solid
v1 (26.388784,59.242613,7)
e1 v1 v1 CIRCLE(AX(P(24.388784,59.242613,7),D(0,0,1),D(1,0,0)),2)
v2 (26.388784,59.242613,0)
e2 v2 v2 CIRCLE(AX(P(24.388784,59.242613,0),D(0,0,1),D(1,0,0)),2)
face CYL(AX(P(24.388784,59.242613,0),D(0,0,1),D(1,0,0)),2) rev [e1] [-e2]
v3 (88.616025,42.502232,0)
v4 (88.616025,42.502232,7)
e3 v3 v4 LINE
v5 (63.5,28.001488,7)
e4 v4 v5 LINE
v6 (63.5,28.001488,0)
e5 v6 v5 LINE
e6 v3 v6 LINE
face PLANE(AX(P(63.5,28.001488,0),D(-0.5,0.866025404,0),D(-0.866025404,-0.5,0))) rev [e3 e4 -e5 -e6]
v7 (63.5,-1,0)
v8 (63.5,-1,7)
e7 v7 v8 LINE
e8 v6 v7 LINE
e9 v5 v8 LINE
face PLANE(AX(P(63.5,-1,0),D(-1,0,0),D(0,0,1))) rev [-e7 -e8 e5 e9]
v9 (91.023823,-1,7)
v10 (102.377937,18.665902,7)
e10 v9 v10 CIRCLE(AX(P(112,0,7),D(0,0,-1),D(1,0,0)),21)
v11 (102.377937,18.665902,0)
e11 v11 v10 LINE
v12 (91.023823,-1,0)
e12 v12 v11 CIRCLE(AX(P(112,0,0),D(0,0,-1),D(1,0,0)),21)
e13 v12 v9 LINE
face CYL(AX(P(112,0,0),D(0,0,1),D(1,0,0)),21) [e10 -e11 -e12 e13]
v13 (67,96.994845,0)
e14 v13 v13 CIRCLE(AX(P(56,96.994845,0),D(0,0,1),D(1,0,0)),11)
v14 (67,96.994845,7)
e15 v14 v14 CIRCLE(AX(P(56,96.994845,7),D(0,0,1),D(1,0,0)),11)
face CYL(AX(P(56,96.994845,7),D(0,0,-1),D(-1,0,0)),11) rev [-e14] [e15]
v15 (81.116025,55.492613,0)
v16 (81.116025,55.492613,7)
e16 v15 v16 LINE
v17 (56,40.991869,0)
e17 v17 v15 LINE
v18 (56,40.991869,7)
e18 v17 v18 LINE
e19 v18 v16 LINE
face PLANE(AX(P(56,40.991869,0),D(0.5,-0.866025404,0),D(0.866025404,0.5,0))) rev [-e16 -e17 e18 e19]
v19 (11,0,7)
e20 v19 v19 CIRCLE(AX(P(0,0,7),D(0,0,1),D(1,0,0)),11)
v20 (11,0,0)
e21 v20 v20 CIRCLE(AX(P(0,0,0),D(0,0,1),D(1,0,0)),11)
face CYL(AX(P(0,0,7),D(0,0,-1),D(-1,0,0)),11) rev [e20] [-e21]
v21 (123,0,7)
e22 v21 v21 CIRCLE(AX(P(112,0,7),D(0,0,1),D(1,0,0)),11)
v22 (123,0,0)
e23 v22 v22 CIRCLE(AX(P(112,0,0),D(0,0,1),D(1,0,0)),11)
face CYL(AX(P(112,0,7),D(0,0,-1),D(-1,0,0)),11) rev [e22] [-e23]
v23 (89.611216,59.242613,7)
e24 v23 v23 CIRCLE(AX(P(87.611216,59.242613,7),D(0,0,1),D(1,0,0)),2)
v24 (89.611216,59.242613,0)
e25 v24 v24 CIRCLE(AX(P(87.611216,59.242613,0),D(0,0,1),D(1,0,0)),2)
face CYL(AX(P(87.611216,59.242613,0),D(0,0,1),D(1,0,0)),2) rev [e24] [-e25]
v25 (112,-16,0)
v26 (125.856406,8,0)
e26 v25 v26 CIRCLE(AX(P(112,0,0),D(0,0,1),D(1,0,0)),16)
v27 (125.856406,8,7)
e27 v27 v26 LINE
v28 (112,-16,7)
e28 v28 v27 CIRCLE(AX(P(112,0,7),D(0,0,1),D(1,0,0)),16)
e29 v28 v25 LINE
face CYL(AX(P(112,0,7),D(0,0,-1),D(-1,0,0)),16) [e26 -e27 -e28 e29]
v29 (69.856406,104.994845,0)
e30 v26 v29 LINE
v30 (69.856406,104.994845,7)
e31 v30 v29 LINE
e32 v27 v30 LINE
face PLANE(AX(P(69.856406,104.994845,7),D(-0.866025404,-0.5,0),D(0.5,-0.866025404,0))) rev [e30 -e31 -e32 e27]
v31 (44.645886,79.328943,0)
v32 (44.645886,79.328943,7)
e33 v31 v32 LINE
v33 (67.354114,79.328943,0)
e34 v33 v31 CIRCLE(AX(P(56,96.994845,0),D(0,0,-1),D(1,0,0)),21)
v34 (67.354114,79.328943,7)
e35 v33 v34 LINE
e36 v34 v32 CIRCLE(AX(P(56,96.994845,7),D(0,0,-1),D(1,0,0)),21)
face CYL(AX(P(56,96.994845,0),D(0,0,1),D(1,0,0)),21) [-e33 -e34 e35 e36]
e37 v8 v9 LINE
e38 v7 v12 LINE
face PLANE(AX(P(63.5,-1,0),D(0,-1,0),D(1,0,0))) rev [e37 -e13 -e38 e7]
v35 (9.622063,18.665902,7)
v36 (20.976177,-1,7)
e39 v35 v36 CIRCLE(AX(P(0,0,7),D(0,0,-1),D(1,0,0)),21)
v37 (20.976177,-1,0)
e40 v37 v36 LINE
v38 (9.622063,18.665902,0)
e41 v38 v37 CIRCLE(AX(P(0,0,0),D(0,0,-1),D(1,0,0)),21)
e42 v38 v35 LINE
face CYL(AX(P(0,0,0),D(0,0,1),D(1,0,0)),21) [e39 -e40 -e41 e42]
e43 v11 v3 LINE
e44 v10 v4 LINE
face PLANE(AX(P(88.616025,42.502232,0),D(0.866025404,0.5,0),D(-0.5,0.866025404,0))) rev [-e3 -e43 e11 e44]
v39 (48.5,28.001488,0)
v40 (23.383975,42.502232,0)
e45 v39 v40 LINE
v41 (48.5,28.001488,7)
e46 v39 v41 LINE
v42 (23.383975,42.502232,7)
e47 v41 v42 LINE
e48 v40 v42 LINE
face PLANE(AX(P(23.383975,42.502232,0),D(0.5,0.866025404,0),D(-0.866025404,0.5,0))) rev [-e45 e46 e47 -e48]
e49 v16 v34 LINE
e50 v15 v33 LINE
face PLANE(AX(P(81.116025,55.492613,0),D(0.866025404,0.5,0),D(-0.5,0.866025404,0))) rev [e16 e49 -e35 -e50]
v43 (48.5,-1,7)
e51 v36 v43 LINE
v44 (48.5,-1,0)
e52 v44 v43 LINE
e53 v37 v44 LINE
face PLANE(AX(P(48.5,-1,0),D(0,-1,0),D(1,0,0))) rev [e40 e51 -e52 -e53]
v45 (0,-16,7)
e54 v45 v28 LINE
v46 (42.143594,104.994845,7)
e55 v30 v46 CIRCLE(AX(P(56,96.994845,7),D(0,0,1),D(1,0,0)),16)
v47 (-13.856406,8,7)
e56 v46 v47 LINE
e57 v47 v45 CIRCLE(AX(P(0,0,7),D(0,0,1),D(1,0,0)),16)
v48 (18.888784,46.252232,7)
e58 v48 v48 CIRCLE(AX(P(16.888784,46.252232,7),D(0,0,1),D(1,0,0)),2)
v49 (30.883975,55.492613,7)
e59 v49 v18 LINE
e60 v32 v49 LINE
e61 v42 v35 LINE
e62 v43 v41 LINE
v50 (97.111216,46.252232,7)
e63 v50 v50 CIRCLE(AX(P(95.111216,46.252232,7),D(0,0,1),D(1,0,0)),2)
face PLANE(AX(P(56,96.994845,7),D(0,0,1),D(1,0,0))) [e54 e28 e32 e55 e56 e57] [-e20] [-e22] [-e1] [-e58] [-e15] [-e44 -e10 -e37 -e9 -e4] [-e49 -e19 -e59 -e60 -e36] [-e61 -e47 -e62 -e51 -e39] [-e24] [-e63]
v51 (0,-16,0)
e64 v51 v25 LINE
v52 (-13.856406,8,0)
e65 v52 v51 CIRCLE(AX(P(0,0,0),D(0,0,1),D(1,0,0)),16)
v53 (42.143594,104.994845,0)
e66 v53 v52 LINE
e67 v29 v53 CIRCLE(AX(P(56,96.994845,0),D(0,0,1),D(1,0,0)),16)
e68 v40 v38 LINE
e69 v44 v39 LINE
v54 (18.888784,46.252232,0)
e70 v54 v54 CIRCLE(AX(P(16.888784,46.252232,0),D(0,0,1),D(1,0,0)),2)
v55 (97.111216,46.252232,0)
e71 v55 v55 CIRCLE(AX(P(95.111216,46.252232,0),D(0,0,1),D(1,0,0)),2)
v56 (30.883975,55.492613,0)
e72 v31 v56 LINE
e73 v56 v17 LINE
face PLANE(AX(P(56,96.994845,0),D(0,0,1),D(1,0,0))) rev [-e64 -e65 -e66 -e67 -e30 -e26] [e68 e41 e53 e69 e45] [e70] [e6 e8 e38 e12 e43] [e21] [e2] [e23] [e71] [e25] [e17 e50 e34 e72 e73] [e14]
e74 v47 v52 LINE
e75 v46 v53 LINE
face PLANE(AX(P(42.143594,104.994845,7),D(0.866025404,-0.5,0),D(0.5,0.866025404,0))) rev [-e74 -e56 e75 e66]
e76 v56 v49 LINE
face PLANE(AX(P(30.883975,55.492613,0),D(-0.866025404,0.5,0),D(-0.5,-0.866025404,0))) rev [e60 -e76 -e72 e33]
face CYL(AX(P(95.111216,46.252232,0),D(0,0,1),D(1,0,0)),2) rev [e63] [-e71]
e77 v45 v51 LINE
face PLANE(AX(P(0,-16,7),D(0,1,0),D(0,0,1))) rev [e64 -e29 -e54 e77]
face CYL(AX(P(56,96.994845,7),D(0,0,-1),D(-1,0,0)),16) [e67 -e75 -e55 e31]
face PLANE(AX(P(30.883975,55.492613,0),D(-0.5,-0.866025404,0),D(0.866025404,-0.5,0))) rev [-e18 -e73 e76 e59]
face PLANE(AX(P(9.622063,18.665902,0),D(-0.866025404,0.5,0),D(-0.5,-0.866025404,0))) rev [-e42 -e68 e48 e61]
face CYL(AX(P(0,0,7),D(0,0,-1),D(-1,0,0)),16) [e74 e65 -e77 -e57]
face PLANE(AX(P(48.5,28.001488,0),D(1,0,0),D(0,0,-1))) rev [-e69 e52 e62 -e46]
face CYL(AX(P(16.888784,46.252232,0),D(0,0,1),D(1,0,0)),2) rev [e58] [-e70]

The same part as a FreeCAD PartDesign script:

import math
import FreeCAD as App
import Part
import Sketcher

V = App.Vector
Q = App.Units.Quantity

doc = App.newDocument("Part")
body = doc.addObject("PartDesign::Body", "Body")

sketch1 = body.newObject("Sketcher::SketchObject", "Sketch")
sketch1.AttachmentSupport = (doc.getObject("XY_Plane"), [""])
sketch1.MapMode = "FlatFace"
sketch1.addGeometry([
    Part.LineSegment(V(42, 105, 0), V(-14, 8, 0)),
    Part.ArcOfCircle(Part.Circle(V(0, 0, 0), V(0, 0, 1), 16), math.radians(150), math.radians(270)),
    Part.LineSegment(V(0, -16, 0), V(112, -16, 0)),
    Part.ArcOfCircle(Part.Circle(V(112, 0, 0), V(0, 0, 1), 16), math.radians(-90), math.radians(30)),
    Part.LineSegment(V(126, 8, 0), V(70, 105, 0)),
    Part.ArcOfCircle(Part.Circle(V(56, 97, 0), V(0, 0, 1), 16), math.radians(30), math.radians(150)),
    Part.Circle(V(0, 0, 0), V(0, 0, 1), 11),
    Part.Circle(V(112, 0, 0), V(0, 0, 1), 11),
    Part.Circle(V(56, 97, 0), V(0, 0, 1), 11),
], False)
sketch1.addConstraint([
    Sketcher.Constraint("Tangent", 0, 2, 1, 1),
    Sketcher.Constraint("Tangent", 1, 2, 2, 1),
    Sketcher.Constraint("Tangent", 2, 2, 3, 1),
    Sketcher.Constraint("Tangent", 3, 2, 4, 1),
    Sketcher.Constraint("Tangent", 4, 2, 5, 1),
    Sketcher.Constraint("Tangent", 5, 2, 0, 1),
    Sketcher.Constraint("Horizontal", 2),
    Sketcher.Constraint("Coincident", 1, 3, -1, 1),
    Sketcher.Constraint("Coincident", 6, 3, -1, 1),
    Sketcher.Constraint("Coincident", 7, 3, 3, 3),
    Sketcher.Constraint("Coincident", 8, 3, 5, 3),
    Sketcher.Constraint("Equal", 1, 3),
    Sketcher.Constraint("Equal", 3, 5),
    Sketcher.Constraint("Equal", 6, 7),
    Sketcher.Constraint("Equal", 7, 8),
    Sketcher.Constraint("Horizontal", 0, 2, 3, 2),
    Sketcher.Constraint("Diameter", 6, Q("22 mm")),
    Sketcher.Constraint("Radius", 1, Q("16 mm")),
    Sketcher.Constraint("DistanceX", 2, 1, 2, 2, Q("112 mm")),
    Sketcher.Constraint("Angle", 0, Q("-120 deg")),
])
pad1 = body.newObject("PartDesign::Pad", "Pad")
pad1.Profile = sketch1
pad1.Length = 7

sketch2 = body.newObject("Sketcher::SketchObject", "Sketch001")
sketch2.AttachmentSupport = (doc.getObject("XY_Plane"), [""])
sketch2.MapMode = "FlatFace"
sketch2.AttachmentOffset = App.Placement(V(0, 0, 7), App.Rotation())
sketch2.addGeometry([
    Part.LineSegment(V(23, 43, 0), V(10, 19, 0)),
    Part.ArcOfCircle(Part.Circle(V(0, 0, 0), V(0, 0, 1), 21), math.radians(-3), math.radians(63)),
    Part.LineSegment(V(21, -1, 0), V(48, -1, 0)),
    Part.LineSegment(V(48, -1, 0), V(48, 28, 0)),
    Part.LineSegment(V(48, 28, 0), V(23, 43, 0)),
    Part.LineSegment(V(64, -1, 0), V(91, -1, 0)),
    Part.ArcOfCircle(Part.Circle(V(112, 0, 0), V(0, 0, 1), 21), math.radians(117), math.radians(183)),
    Part.LineSegment(V(102, 19, 0), V(89, 43, 0)),
    Part.LineSegment(V(89, 43, 0), V(64, 28, 0)),
    Part.LineSegment(V(64, 28, 0), V(64, -1, 0)),
    Part.LineSegment(V(45, 79, 0), V(31, 55, 0)),
    Part.LineSegment(V(31, 55, 0), V(56, 41, 0)),
    Part.LineSegment(V(56, 41, 0), V(81, 55, 0)),
    Part.LineSegment(V(81, 55, 0), V(67, 79, 0)),
    Part.ArcOfCircle(Part.Circle(V(56, 97, 0), V(0, 0, 1), 21), math.radians(-123), math.radians(-57)),
], False)
sketch2.addConstraint([
    Sketcher.Constraint("Coincident", 0, 2, 1, 2),
    Sketcher.Constraint("Coincident", 1, 1, 2, 1),
    Sketcher.Constraint("Coincident", 2, 2, 3, 1),
    Sketcher.Constraint("Coincident", 3, 2, 4, 1),
    Sketcher.Constraint("Coincident", 4, 2, 0, 1),
    Sketcher.Constraint("Coincident", 5, 2, 6, 2),
    Sketcher.Constraint("Coincident", 6, 1, 7, 1),
    Sketcher.Constraint("Coincident", 7, 2, 8, 1),
    Sketcher.Constraint("Coincident", 8, 2, 9, 1),
    Sketcher.Constraint("Coincident", 9, 2, 5, 1),
    Sketcher.Constraint("Coincident", 10, 2, 11, 1),
    Sketcher.Constraint("Coincident", 11, 2, 12, 1),
    Sketcher.Constraint("Coincident", 12, 2, 13, 1),
    Sketcher.Constraint("Coincident", 13, 2, 14, 2),
    Sketcher.Constraint("Coincident", 14, 1, 10, 1),
    Sketcher.Constraint("Horizontal", 2),
    Sketcher.Constraint("Vertical", 3),
    Sketcher.Constraint("Horizontal", 5),
    Sketcher.Constraint("Vertical", 9),
    Sketcher.Constraint("Coincident", 1, 3, -1, 1),
    Sketcher.Constraint("Equal", 1, 6),
    Sketcher.Constraint("Equal", 6, 14),
    Sketcher.Constraint("PointOnObject", 6, 3, -1),
    Sketcher.Constraint("Perpendicular", 0, 4),
    Sketcher.Constraint("Perpendicular", 7, 8),
    Sketcher.Constraint("Perpendicular", 4, 10),
    Sketcher.Constraint("Perpendicular", 10, 11),
    Sketcher.Constraint("Parallel", 8, 12),
    Sketcher.Constraint("Perpendicular", 12, 13),
    Sketcher.Constraint("Horizontal", 2, 2, 5, 2),
    Sketcher.Constraint("Horizontal", 0, 2, 6, 1),
    Sketcher.Constraint("Horizontal", 4, 2, 7, 2),
    Sketcher.Constraint("Horizontal", 3, 2, 8, 2),
    Sketcher.Constraint("Horizontal", 10, 2, 12, 2),
    Sketcher.Constraint("Horizontal", 13, 2, 14, 1),
    Sketcher.Constraint("Vertical", 14, 3, 11, 2),
    Sketcher.Constraint("Equal", 7, 10),
    Sketcher.Constraint("Equal", 8, 11),
    Sketcher.Constraint("Radius", 1, Q("21 mm")),
    Sketcher.Constraint("Angle", 0, Q("-120 deg")),
    Sketcher.Constraint("DistanceX", -1, 1, 6, 3, Q("112 mm")),
    Sketcher.Constraint("DistanceX", -1, 1, 14, 3, Q("56 mm")),
    Sketcher.Constraint("DistanceY", 1, 1, -1, 1, Q("1 mm")),
    Sketcher.Constraint("DistanceX", 3, 2, 8, 2, Q("15 mm")),
    Sketcher.Constraint("DistanceY", 3, 1, 3, 2, Q("29.001488 mm")),
    Sketcher.Constraint("Distance", 4, Q("29.001488 mm")),
    Sketcher.Constraint("DistanceY", -1, 1, 11, 2, Q("40.991869 mm")),
])
pocket1 = body.newObject("PartDesign::Pocket", "Pocket")
pocket1.Profile = sketch2
pocket1.Type = "ThroughAll"

sketch3 = body.newObject("Sketcher::SketchObject", "Sketch002")
sketch3.AttachmentSupport = (doc.getObject("XY_Plane"), [""])
sketch3.MapMode = "FlatFace"
sketch3.AttachmentOffset = App.Placement(V(0, 0, 7), App.Rotation())
sketch3.addGeometry([
    Part.Circle(V(24.4, 59.2, 0), V(0, 0, 1), 2),
    Part.Circle(V(16.9, 46.3, 0), V(0, 0, 1), 2),
    Part.Circle(V(87.6, 59.2, 0), V(0, 0, 1), 2),
    Part.Circle(V(95.1, 46.3, 0), V(0, 0, 1), 2),
], False)
sketch3.addConstraint([
    Sketcher.Constraint("Equal", 0, 1),
    Sketcher.Constraint("Equal", 1, 2),
    Sketcher.Constraint("Equal", 2, 3),
    Sketcher.Constraint("Horizontal", 0, 3, 2, 3),
    Sketcher.Constraint("Horizontal", 1, 3, 3, 3),
    Sketcher.Constraint("Diameter", 0, Q("4 mm")),
    Sketcher.Constraint("DistanceX", 1, 3, 0, 3, Q("7.5 mm")),
    Sketcher.Constraint("DistanceX", 2, 3, 3, 3, Q("7.5 mm")),
    Sketcher.Constraint("DistanceY", 1, 3, 0, 3, Q("12.990381 mm")),
    Sketcher.Constraint("DistanceX", 0, 3, 2, 3, Q("63.222432 mm")),
    Sketcher.Constraint("DistanceX", -1, 1, 0, 3, Q("24.388784 mm")),
    Sketcher.Constraint("DistanceY", -1, 1, 0, 3, Q("59.242613 mm")),
])
pocket2 = body.newObject("PartDesign::Pocket", "Pocket001")
pocket2.Profile = sketch3
pocket2.Type = "ThroughAll"

doc.recompute()
